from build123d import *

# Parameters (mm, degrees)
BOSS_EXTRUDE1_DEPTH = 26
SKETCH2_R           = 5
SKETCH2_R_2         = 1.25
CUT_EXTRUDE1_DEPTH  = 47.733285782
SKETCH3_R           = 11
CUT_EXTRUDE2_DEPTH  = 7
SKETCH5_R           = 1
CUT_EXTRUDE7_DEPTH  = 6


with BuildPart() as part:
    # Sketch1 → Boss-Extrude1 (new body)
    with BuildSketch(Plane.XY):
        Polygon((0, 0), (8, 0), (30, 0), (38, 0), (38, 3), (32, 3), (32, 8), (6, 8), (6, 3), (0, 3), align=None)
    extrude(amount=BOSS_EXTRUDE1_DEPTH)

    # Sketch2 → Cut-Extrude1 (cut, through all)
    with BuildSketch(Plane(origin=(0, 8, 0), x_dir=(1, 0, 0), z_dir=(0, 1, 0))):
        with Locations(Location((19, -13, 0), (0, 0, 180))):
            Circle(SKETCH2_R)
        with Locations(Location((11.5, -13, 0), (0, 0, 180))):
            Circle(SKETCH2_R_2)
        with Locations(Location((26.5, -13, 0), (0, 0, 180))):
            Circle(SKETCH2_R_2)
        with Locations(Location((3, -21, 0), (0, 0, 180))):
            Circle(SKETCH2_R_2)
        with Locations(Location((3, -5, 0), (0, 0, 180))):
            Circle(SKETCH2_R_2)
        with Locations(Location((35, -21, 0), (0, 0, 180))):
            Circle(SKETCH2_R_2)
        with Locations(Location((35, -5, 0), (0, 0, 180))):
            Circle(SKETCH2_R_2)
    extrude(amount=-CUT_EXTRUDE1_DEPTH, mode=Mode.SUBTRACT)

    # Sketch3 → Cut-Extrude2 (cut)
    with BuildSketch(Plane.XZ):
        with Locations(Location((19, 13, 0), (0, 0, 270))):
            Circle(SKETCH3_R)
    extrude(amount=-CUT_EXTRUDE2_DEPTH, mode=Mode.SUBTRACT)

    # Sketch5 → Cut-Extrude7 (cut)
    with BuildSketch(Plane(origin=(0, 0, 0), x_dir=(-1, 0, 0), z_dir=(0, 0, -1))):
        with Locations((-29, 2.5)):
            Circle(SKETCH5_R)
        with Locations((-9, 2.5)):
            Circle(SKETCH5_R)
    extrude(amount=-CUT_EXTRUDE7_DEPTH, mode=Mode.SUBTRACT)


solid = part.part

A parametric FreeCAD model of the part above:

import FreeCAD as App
import Part
import Sketcher

V = App.Vector

doc = App.newDocument("Part")
body = doc.addObject("PartDesign::Body", "Body")

sketch1 = body.newObject("Sketcher::SketchObject", "Sketch")
sketch1.AttachmentSupport = (doc.getObject("XY_Plane"), [""])
sketch1.MapMode = "FlatFace"
sketch1.addGeometry(Part.LineSegment(V(0, 0, 0), V(38, 0, 0)), False)
sketch1.addGeometry(Part.LineSegment(V(38, 0, 0), V(38, 3, 0)), False)
sketch1.addGeometry(Part.LineSegment(V(38, 3, 0), V(32, 3, 0)), False)
sketch1.addGeometry(Part.LineSegment(V(32, 3, 0), V(32, 8, 0)), False)
sketch1.addGeometry(Part.LineSegment(V(32, 8, 0), V(6, 8, 0)), False)
sketch1.addGeometry(Part.LineSegment(V(6, 8, 0), V(6, 3, 0)), False)
sketch1.addGeometry(Part.LineSegment(V(6, 3, 0), V(0, 3, 0)), False)
sketch1.addGeometry(Part.LineSegment(V(0, 3, 0), V(0, 0, 0)), False)
sketch1.addConstraint(Sketcher.Constraint("Coincident", 0, 2, 1, 1))
sketch1.addConstraint(Sketcher.Constraint("Coincident", 1, 2, 2, 1))
sketch1.addConstraint(Sketcher.Constraint("Coincident", 2, 2, 3, 1))
sketch1.addConstraint(Sketcher.Constraint("Coincident", 3, 2, 4, 1))
sketch1.addConstraint(Sketcher.Constraint("Coincident", 4, 2, 5, 1))
sketch1.addConstraint(Sketcher.Constraint("Coincident", 5, 2, 6, 1))
sketch1.addConstraint(Sketcher.Constraint("Coincident", 6, 2, 7, 1))
sketch1.addConstraint(Sketcher.Constraint("Coincident", 7, 2, 0, 1))
sketch1.addConstraint(Sketcher.Constraint("Horizontal", 0))
sketch1.addConstraint(Sketcher.Constraint("Vertical", 1))
sketch1.addConstraint(Sketcher.Constraint("Horizontal", 2))
sketch1.addConstraint(Sketcher.Constraint("Vertical", 3))
sketch1.addConstraint(Sketcher.Constraint("Horizontal", 4))
sketch1.addConstraint(Sketcher.Constraint("Vertical", 5))
sketch1.addConstraint(Sketcher.Constraint("Horizontal", 6))
sketch1.addConstraint(Sketcher.Constraint("Vertical", 7))
sketch1.addConstraint(Sketcher.Constraint("Coincident", 7, 2, -1, 1))
sketch1.addConstraint(Sketcher.Constraint("Horizontal", 2, 2, 5, 2))
sketch1.addConstraint(Sketcher.Constraint("Equal", 2, 6))
sketch1.addConstraint(Sketcher.Constraint("DistanceX", 0, 1, 0, 2, 38.0))
sketch1.addConstraint(Sketcher.Constraint("DistanceX", 2, 2, 2, 1, 6.0))
sketch1.addConstraint(Sketcher.Constraint("DistanceY", 1, 1, 1, 2, 3.0))
sketch1.addConstraint(Sketcher.Constraint("DistanceY", 3, 1, 3, 2, 5.0))
pad1 = body.newObject("PartDesign::Pad", "Pad")
pad1.Profile = sketch1
pad1.Length = 26

sketch2 = body.newObject("Sketcher::SketchObject", "Sketch001")
sketch2.AttachmentSupport = (doc.getObject("XZ_Plane"), [""])
sketch2.MapMode = "FlatFace"
sketch2.AttachmentOffset = App.Placement(V(0, 0, -8), App.Rotation())
sketch2.addGeometry(Part.Circle(V(19, 13, 0), V(0, 0, 1), 5), False)
sketch2.addGeometry(Part.Circle(V(11.5, 13, 0), V(0, 0, 1), 1.25), False)
sketch2.addGeometry(Part.Circle(V(26.5, 13, 0), V(0, 0, 1), 1.25), False)
sketch2.addGeometry(Part.Circle(V(3, 21, 0), V(0, 0, 1), 1.25), False)
sketch2.addGeometry(Part.Circle(V(3, 5, 0), V(0, 0, 1), 1.25), False)
sketch2.addGeometry(Part.Circle(V(35, 21, 0), V(0, 0, 1), 1.25), False)
sketch2.addGeometry(Part.Circle(V(35, 5, 0), V(0, 0, 1), 1.25), False)
sketch2.addConstraint(Sketcher.Constraint("Equal", 1, 2))
sketch2.addConstraint(Sketcher.Constraint("Equal", 2, 3))
sketch2.addConstraint(Sketcher.Constraint("Equal", 3, 4))
sketch2.addConstraint(Sketcher.Constraint("Equal", 4, 5))
sketch2.addConstraint(Sketcher.Constraint("Equal", 5, 6))
sketch2.addConstraint(Sketcher.Constraint("Horizontal", 0, 3, 1, 3))
sketch2.addConstraint(Sketcher.Constraint("Horizontal", 1, 3, 2, 3))
sketch2.addConstraint(Sketcher.Constraint("Horizontal", 3, 3, 5, 3))
sketch2.addConstraint(Sketcher.Constraint("Horizontal", 4, 3, 6, 3))
sketch2.addConstraint(Sketcher.Constraint("Vertical", 3, 3, 4, 3))
sketch2.addConstraint(Sketcher.Constraint("Vertical", 5, 3, 6, 3))
sketch2.addConstraint(Sketcher.Constraint("Diameter", 0, 10.0))
sketch2.addConstraint(Sketcher.Constraint("Diameter", 1, 2.5))
sketch2.addConstraint(Sketcher.Constraint("DistanceX", -1, 1, 0, 3, 19.0))
sketch2.addConstraint(Sketcher.Constraint("DistanceY", -1, 1, 0, 3, 13.0))
sketch2.addConstraint(Sketcher.Constraint("DistanceX", -1, 1, 3, 3, 3.0))
sketch2.addConstraint(Sketcher.Constraint("DistanceY", -1, 1, 3, 3, 21.0))
sketch2.addConstraint(Sketcher.Constraint("DistanceY", -1, 1, 4, 3, 5.0))
sketch2.addConstraint(Sketcher.Constraint("DistanceX", -1, 1, 5, 3, 35.0))
sketch2.addConstraint(Sketcher.Constraint("DistanceX", 1, 3, 2, 3, 15.0))
sketch2.addConstraint(Sketcher.Constraint("DistanceX", -1, 1, 1, 3, 11.5))
pocket1 = body.newObject("PartDesign::Pocket", "Pocket")
pocket1.Profile = sketch2
pocket1.Type = "ThroughAll"
pocket1.Reversed = True

sketch3 = body.newObject("Sketcher::SketchObject", "Sketch002")
sketch3.AttachmentSupport = (doc.getObject("XZ_Plane"), [""])
sketch3.MapMode = "FlatFace"
sketch3.addGeometry(Part.Circle(V(19, 13, 0), V(0, 0, 1), 11), False)
sketch3.addConstraint(Sketcher.Constraint("Diameter", 0, 22.0))
sketch3.addConstraint(Sketcher.Constraint("DistanceX", -1, 1, 0, 3, 19.0))
sketch3.addConstraint(Sketcher.Constraint("DistanceY", -1, 1, 0, 3, 13.0))
pocket2 = body.newObject("PartDesign::Pocket", "Pocket001")
pocket2.Profile = sketch3
pocket2.Length = 7

sketch4 = body.newObject("Sketcher::SketchObject", "Sketch003")
sketch4.AttachmentSupport = (doc.getObject("XY_Plane"), [""])
sketch4.MapMode = "FlatFace"
sketch4.addGeometry(Part.Circle(V(29, 2.5, 0), V(0, 0, 1), 1), False)
sketch4.addGeometry(Part.Circle(V(9, 2.5, 0), V(0, 0, 1), 1), False)
sketch4.addConstraint(Sketcher.Constraint("Equal", 0, 1))
sketch4.addConstraint(Sketcher.Constraint("Horizontal", 0, 3, 1, 3))
sketch4.addConstraint(Sketcher.Constraint("Diameter", 0, 2.0))
sketch4.addConstraint(Sketcher.Constraint("DistanceX", -1, 1, 0, 3, 29.0))
sketch4.addConstraint(Sketcher.Constraint("DistanceX", -1, 1, 1, 3, 9.0))
sketch4.addConstraint(Sketcher.Constraint("DistanceY", -1, 1, 0, 3, 2.5))
pocket3 = body.newObject("PartDesign::Pocket", "Pocket002")
pocket3.Profile = sketch4
pocket3.Length = 6
pocket3.Reversed = True

doc.recompute()
